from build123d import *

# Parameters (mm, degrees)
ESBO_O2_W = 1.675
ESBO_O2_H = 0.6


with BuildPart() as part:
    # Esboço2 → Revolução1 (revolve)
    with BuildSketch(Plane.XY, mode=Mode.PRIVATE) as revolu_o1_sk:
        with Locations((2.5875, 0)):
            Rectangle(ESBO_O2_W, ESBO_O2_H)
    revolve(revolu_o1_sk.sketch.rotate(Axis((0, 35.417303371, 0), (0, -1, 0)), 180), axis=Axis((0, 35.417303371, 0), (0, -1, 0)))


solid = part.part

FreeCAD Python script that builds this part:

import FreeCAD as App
import Part
import Sketcher
from FreeCAD import Vector
Q = App.Units.Quantity


def add_polygon(sketch, points):
    """Adds a closed chain of lines whose ends are joined by coincident constraints."""
    first, n = sketch.GeometryCount, len(points)
    for a, b in zip(points, points[1:] + points[:1]):
        sketch.addGeometry(Part.LineSegment(App.Vector(*a, 0), App.Vector(*b, 0)), False)
    for i in range(n):
        sketch.addConstraint(Sketcher.Constraint("Coincident", first + i, 2, first + (i + 1) % n, 1))

doc = App.newDocument("Part")
body = doc.addObject("PartDesign::Body", "Body")

# Sketch on XY plane
sketch1 = body.newObject("Sketcher::SketchObject", "Sketch")
sketch1.AttachmentSupport = (doc.getObject("XY_Plane"), [""])
sketch1.MapMode = "FlatFace"
add_polygon(sketch1, [(1.8, 0.3), (1.8, -0.3), (3.4, -0.3), (3.4, 0.3)])  # lines 0-3
sketch1.addConstraint([
    Sketcher.Constraint("Vertical", 0),
    Sketcher.Constraint("Horizontal", 1),
    Sketcher.Constraint("Vertical", 2),
    Sketcher.Constraint("Horizontal", 3),
    Sketcher.Constraint("DistanceY", 0, 2, 0, 1, Q("0.6 mm")),
    Sketcher.Constraint("DistanceY", 0, 2, -1, 1, Q("0.3 mm")),
    Sketcher.Constraint("DistanceX", 1, 1, 1, 2, Q("1.675 mm")),
    Sketcher.Constraint("DistanceX", -1, 1, 0, 2, Q("1.75 mm")),
])
revolution = body.newObject("PartDesign::Revolution", "Revolution")
revolution.Profile = sketch1
revolution.ReferenceAxis = (sketch1, ["V_Axis"])
revolution.Angle = 360

doc.recompute()
